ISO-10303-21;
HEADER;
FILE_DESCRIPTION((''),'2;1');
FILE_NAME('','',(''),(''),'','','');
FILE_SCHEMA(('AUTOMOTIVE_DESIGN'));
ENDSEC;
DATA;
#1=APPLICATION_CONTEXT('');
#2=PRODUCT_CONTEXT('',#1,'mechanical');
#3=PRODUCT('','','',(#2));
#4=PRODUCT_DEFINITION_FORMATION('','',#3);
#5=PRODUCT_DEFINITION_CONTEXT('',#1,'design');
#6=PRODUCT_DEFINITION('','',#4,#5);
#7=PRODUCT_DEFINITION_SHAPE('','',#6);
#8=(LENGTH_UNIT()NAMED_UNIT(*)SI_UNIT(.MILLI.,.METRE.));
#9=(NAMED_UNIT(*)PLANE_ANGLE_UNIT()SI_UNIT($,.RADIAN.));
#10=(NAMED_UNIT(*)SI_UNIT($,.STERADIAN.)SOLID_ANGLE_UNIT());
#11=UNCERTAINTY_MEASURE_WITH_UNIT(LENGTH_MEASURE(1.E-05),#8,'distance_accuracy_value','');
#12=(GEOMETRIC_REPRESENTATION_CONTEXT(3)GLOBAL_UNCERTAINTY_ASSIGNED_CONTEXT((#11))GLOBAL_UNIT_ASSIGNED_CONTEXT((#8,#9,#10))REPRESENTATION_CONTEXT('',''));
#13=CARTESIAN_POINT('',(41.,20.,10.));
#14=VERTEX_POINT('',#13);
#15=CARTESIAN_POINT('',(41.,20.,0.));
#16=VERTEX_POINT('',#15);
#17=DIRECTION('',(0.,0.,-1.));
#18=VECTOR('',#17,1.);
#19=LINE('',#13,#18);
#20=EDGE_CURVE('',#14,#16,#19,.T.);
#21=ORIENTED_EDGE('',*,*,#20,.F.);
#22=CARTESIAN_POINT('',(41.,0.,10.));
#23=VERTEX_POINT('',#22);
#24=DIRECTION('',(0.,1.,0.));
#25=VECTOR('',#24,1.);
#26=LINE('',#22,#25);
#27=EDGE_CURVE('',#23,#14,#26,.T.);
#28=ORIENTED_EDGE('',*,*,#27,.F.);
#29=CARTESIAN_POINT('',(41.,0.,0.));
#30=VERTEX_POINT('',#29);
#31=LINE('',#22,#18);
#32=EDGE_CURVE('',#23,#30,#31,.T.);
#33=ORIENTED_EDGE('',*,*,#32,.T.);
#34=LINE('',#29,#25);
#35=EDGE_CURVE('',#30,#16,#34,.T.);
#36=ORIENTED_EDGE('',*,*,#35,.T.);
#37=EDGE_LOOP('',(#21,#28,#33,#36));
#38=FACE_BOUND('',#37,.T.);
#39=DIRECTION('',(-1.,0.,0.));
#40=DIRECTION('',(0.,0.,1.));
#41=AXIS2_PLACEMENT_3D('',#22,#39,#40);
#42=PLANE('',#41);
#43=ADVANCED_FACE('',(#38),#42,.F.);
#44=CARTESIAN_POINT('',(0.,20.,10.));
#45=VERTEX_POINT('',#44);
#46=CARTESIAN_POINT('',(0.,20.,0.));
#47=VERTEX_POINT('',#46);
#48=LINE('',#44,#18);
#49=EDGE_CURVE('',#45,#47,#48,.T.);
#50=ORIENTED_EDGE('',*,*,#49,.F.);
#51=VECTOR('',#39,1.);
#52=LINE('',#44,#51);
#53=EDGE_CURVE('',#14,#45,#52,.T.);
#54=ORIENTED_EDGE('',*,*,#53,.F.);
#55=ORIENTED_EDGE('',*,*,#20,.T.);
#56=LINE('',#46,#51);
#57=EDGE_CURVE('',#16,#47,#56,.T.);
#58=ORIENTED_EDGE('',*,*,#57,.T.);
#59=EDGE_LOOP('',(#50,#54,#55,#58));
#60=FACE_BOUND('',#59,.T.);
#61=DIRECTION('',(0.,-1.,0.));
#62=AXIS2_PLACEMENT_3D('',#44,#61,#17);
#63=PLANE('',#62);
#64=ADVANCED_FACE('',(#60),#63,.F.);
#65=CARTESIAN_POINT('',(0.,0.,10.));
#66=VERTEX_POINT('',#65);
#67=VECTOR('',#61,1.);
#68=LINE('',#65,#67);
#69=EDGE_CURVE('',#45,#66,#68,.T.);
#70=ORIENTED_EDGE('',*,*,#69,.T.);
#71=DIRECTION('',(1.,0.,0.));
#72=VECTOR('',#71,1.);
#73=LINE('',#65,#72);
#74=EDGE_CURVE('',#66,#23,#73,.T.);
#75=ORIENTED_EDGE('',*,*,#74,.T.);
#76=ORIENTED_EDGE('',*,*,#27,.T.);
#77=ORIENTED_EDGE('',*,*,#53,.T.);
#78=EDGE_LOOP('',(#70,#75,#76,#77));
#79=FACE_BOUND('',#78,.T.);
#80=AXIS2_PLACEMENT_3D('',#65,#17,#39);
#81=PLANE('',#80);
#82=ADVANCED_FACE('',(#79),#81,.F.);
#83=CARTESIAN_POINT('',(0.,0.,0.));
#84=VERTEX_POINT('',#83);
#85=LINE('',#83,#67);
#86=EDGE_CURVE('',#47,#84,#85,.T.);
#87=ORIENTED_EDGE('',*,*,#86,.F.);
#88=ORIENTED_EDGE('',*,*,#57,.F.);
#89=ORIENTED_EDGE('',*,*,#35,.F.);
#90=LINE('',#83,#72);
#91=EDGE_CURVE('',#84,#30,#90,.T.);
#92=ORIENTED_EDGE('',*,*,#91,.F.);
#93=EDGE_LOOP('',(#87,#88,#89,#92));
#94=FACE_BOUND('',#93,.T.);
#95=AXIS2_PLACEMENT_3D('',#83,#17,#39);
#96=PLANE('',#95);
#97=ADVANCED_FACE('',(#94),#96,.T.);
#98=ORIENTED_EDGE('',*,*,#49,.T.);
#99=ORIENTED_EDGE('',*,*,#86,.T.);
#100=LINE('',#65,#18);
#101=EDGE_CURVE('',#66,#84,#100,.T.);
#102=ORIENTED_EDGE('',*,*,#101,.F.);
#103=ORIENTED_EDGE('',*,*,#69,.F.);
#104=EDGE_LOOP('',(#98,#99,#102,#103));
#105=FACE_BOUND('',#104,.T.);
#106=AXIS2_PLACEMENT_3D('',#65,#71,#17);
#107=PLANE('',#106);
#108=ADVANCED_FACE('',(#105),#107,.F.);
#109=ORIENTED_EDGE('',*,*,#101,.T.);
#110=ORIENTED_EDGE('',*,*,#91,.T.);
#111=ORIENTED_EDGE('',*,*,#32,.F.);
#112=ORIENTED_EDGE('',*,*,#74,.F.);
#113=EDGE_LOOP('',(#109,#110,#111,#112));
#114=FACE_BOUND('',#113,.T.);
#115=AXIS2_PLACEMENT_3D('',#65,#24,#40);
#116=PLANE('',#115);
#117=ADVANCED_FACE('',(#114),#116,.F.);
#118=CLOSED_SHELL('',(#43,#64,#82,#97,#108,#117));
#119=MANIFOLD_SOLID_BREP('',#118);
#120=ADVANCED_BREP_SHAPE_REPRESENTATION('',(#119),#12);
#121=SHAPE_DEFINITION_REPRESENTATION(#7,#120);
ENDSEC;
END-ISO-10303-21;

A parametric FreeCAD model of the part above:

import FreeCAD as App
import Part
import Sketcher


def add_polygon(sketch, points):
    """Adds a closed chain of lines whose ends are joined by coincident constraints."""
    first, n = sketch.GeometryCount, len(points)
    for a, b in zip(points, points[1:] + points[:1]):
        sketch.addGeometry(Part.LineSegment(App.Vector(*a, 0), App.Vector(*b, 0)), False)
    for i in range(n):
        sketch.addConstraint(Sketcher.Constraint("Coincident", first + i, 2, first + (i + 1) % n, 1))

doc = App.newDocument("Part")
body = doc.addObject("PartDesign::Body", "Body")

# Sketch on XY plane
sketch1 = body.newObject("Sketcher::SketchObject", "Sketch")
sketch1.AttachmentSupport = (doc.getObject("XY_Plane"), [""])
sketch1.MapMode = "FlatFace"
add_polygon(sketch1, [(0, 20), (0, 0), (41, 0), (41, 20)])  # lines 0-3
sketch1.addConstraint([
    Sketcher.Constraint("Vertical", 0),
    Sketcher.Constraint("Horizontal", 1),
    Sketcher.Constraint("Vertical", 2),
    Sketcher.Constraint("Horizontal", 3),
    Sketcher.Constraint("Coincident", 0, 2, -1, 1),
    Sketcher.Constraint("DistanceX", 1, 1, 1, 2, 41.0),
    Sketcher.Constraint("DistanceY", 0, 2, 0, 1, 20.0),
])
pad1 = body.newObject("PartDesign::Pad", "Pad")
pad1.Profile = sketch1
pad1.Length = 10

doc.recompute()
